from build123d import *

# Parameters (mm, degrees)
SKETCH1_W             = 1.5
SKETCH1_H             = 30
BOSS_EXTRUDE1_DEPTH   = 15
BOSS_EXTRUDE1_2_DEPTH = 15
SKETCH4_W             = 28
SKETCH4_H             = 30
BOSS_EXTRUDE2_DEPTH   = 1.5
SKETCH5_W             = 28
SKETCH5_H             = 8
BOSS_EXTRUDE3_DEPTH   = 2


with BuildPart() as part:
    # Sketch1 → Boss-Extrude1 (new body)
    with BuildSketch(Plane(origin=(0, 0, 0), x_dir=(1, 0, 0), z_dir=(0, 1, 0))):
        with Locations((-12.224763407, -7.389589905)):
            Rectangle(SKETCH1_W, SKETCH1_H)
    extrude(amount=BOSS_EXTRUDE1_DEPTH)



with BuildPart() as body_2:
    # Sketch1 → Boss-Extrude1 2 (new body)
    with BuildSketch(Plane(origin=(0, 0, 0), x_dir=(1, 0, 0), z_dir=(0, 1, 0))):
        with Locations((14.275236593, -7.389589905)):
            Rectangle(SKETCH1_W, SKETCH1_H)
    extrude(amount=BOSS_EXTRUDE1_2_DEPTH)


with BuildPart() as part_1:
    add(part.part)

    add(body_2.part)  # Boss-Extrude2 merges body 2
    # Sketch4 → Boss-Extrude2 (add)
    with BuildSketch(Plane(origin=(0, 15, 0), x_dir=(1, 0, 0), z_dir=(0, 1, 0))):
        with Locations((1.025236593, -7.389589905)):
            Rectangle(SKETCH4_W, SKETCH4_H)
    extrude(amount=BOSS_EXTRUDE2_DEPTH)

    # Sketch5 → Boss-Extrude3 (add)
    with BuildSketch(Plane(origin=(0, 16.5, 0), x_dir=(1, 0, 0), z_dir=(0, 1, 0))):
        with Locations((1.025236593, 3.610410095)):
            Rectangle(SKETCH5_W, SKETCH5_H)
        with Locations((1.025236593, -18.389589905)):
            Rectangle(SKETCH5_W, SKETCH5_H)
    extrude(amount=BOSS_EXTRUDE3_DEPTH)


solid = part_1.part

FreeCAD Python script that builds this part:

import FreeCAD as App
import Part
import Sketcher
Q = App.Units.Quantity


def add_polygon(sketch, points):
    """Adds a closed chain of lines whose ends are joined by coincident constraints."""
    first, n = sketch.GeometryCount, len(points)
    for a, b in zip(points, points[1:] + points[:1]):
        sketch.addGeometry(Part.LineSegment(App.Vector(*a, 0), App.Vector(*b, 0)), False)
    for i in range(n):
        sketch.addConstraint(Sketcher.Constraint("Coincident", first + i, 2, first + (i + 1) % n, 1))

doc = App.newDocument("Part")
body = doc.addObject("PartDesign::Body", "Body")

# Sketch on XZ plane
sketch1 = body.newObject("Sketcher::SketchObject", "Sketch")
sketch1.AttachmentSupport = (doc.getObject("XZ_Plane"), [""])
sketch1.MapMode = "FlatFace"
add_polygon(sketch1, [(-13, -7.6), (-13, 22.4), (-11.5, 22.4), (-11.5, -7.6)])  # lines 0-3
sketch1.addConstraint([
    Sketcher.Constraint("Vertical", 0),
    Sketcher.Constraint("Horizontal", 1),
    Sketcher.Constraint("Vertical", 2),
    Sketcher.Constraint("Horizontal", 3),
    Sketcher.Constraint("DistanceY", 0, 1, 0, 2, Q("30 mm")),
    Sketcher.Constraint("DistanceX", 1, 1, 1, 2, Q("1.5 mm")),
    Sketcher.Constraint("DistanceY", -1, 1, 0, 2, Q("22.38959 mm")),
    Sketcher.Constraint("DistanceX", 0, 2, -1, 1, Q("12.974763 mm")),
])
pad1 = body.newObject("PartDesign::Pad", "Pad")
pad1.Profile = sketch1
pad1.Length = 15
pad1.Reversed = True
body2 = doc.addObject("PartDesign::Body", "Body001")

# Sketch on XZ plane
sketch2 = body2.newObject("Sketcher::SketchObject", "Sketch001")
sketch2.AttachmentSupport = (doc.getObject("XZ_Plane001"), [""])
sketch2.MapMode = "FlatFace"
add_polygon(sketch2, [(13.5, -7.6), (13.5, 22.4), (15, 22.4), (15, -7.6)])  # lines 0-3
sketch2.addConstraint([
    Sketcher.Constraint("Vertical", 0),
    Sketcher.Constraint("Horizontal", 1),
    Sketcher.Constraint("Vertical", 2),
    Sketcher.Constraint("Horizontal", 3),
    Sketcher.Constraint("DistanceY", 0, 1, 0, 2, Q("30 mm")),
    Sketcher.Constraint("DistanceX", 1, 1, 1, 2, Q("1.5 mm")),
    Sketcher.Constraint("DistanceY", -1, 1, 0, 2, Q("22.38959 mm")),
    Sketcher.Constraint("DistanceX", -1, 1, 0, 2, Q("13.525237 mm")),
])
pad2 = body2.newObject("PartDesign::Pad", "Pad001")
pad2.Profile = sketch2
pad2.Length = 15
pad2.Reversed = True
body.AllowCompound = True
doc.recompute()

boolean = body.newObject("PartDesign::Boolean", "Boolean")
boolean.Type = "Fuse"
boolean.addObjects([body2])

# Sketch on XZ plane
sketch3 = body.newObject("Sketcher::SketchObject", "Sketch002")
sketch3.AttachmentSupport = (doc.getObject("XZ_Plane"), [""])
sketch3.MapMode = "FlatFace"
sketch3.AttachmentOffset = App.Placement(App.Vector(0, 0, -15), App.Rotation())
add_polygon(sketch3, [(-13, -8), (-13, 22), (15, 22), (15, -8)])  # lines 0-3
sketch3.addConstraint([
    Sketcher.Constraint("Vertical", 0),
    Sketcher.Constraint("Horizontal", 1),
    Sketcher.Constraint("Vertical", 2),
    Sketcher.Constraint("Horizontal", 3),
    Sketcher.Constraint("DistanceX", 1, 1, 1, 2, Q("28 mm")),
    Sketcher.Constraint("DistanceY", 0, 1, 0, 2, Q("30 mm")),
    Sketcher.Constraint("DistanceY", -1, 1, 0, 2, Q("22.38959 mm")),
    Sketcher.Constraint("DistanceX", 0, 2, -1, 1, Q("12.974763 mm")),
])
pad3 = body.newObject("PartDesign::Pad", "Pad002")
pad3.Profile = sketch3
pad3.Length = 1.5
pad3.Reversed = True

# Sketch on XZ plane
sketch4 = body.newObject("Sketcher::SketchObject", "Sketch003")
sketch4.AttachmentSupport = (doc.getObject("XZ_Plane"), [""])
sketch4.MapMode = "FlatFace"
sketch4.AttachmentOffset = App.Placement(App.Vector(0, 0, -16.5), App.Rotation())
add_polygon(sketch4, [(-13, -8), (-13, 0), (15, 0), (15, -8)])  # lines 0-3
add_polygon(sketch4, [(-13, 14), (-13, 22), (15, 22), (15, 14)])  # lines 4-7
sketch4.addConstraint([
    Sketcher.Constraint("Vertical", 0),
    Sketcher.Constraint("Horizontal", 1),
    Sketcher.Constraint("Vertical", 2),
    Sketcher.Constraint("Horizontal", 3),
    Sketcher.Constraint("Vertical", 4),
    Sketcher.Constraint("Horizontal", 5),
    Sketcher.Constraint("Vertical", 6),
    Sketcher.Constraint("Horizontal", 7),
    Sketcher.Constraint("Vertical", 3, 2, 4, 2),
    Sketcher.Constraint("Vertical", 2, 2, 5, 2),
    Sketcher.Constraint("Equal", 2, 4),
    Sketcher.Constraint("DistanceX", 1, 1, 1, 2, Q("28 mm")),
    Sketcher.Constraint("DistanceY", 0, 1, 0, 2, Q("8 mm")),
    Sketcher.Constraint("DistanceY", 0, 2, 4, 2, Q("22 mm")),
    Sketcher.Constraint("DistanceY", -1, 1, 0, 2, Q("0.38959 mm")),
    Sketcher.Constraint("DistanceX", 0, 2, -1, 1, Q("12.974763 mm")),
])
pad4 = body.newObject("PartDesign::Pad", "Pad003")
pad4.Profile = sketch4
pad4.Length = 2
pad4.Reversed = True

doc.recompute()
